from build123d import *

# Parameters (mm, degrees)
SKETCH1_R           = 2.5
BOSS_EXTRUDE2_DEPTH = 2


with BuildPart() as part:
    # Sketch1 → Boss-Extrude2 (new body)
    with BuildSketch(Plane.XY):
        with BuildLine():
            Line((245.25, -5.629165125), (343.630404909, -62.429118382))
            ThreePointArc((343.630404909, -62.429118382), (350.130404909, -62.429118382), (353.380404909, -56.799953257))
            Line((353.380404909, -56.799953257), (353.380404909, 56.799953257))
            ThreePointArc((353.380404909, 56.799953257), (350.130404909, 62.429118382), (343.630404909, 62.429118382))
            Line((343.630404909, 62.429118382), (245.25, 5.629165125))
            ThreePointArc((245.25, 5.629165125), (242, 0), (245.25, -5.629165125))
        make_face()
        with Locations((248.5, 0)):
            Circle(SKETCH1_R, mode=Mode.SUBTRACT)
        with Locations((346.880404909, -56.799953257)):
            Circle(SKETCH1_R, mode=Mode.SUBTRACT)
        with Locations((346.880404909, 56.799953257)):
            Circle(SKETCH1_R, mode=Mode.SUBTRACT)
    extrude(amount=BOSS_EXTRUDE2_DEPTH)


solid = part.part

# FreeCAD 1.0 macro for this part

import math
import FreeCAD as App
import Part
import Sketcher

V = App.Vector
Q = App.Units.Quantity

doc = App.newDocument("Part")
body = doc.addObject("PartDesign::Body", "Body")

# Sketch on XY plane
sketch1 = body.newObject("Sketcher::SketchObject", "Sketch")
sketch1.AttachmentSupport = (doc.getObject("XY_Plane"), [""])
sketch1.MapMode = "FlatFace"
sketch1.addGeometry(Part.LineSegment(V(245.2, -5.6, 0), V(343.6, -62.4, 0)), False)
sketch1.addGeometry(Part.ArcOfCircle(Part.Circle(V(346.9, -56.8, 0), V(0, 0, 1), 6.5), math.radians(-120), math.radians(0)), False)
sketch1.addGeometry(Part.LineSegment(V(353.4, -56.8, 0), V(353.4, 56.8, 0)), False)
sketch1.addGeometry(Part.ArcOfCircle(Part.Circle(V(346.9, 56.8, 0), V(0, 0, 1), 6.5), math.radians(0), math.radians(120)), False)
sketch1.addGeometry(Part.LineSegment(V(343.6, 62.4, 0), V(245.2, 5.6, 0)), False)
sketch1.addGeometry(Part.ArcOfCircle(Part.Circle(V(248.5, 0, 0), V(0, 0, 1), 6.5), math.radians(120), math.radians(240)), False)
sketch1.addGeometry(Part.Circle(V(346.9, -56.8, 0), V(0, 0, 1), 2.5), False)
sketch1.addGeometry(Part.Circle(V(248.5, 0, 0), V(0, 0, 1), 2.5), False)
sketch1.addGeometry(Part.Circle(V(346.9, 56.8, 0), V(0, 0, 1), 2.5), False)
sketch1.addConstraint(Sketcher.Constraint("Tangent", 0, 2, 1, 1))
sketch1.addConstraint(Sketcher.Constraint("Tangent", 1, 2, 2, 1))
sketch1.addConstraint(Sketcher.Constraint("Tangent", 2, 2, 3, 1))
sketch1.addConstraint(Sketcher.Constraint("Tangent", 3, 2, 4, 1))
sketch1.addConstraint(Sketcher.Constraint("Tangent", 4, 2, 5, 1))
sketch1.addConstraint(Sketcher.Constraint("Tangent", 5, 2, 0, 1))
sketch1.addConstraint(Sketcher.Constraint("Vertical", 2))
sketch1.addConstraint(Sketcher.Constraint("Coincident", 6, 3, 1, 3))
sketch1.addConstraint(Sketcher.Constraint("Coincident", 7, 3, 5, 3))
sketch1.addConstraint(Sketcher.Constraint("Coincident", 8, 3, 3, 3))
sketch1.addConstraint(Sketcher.Constraint("Equal", 1, 3))
sketch1.addConstraint(Sketcher.Constraint("Equal", 3, 5))
sketch1.addConstraint(Sketcher.Constraint("Equal", 6, 7))
sketch1.addConstraint(Sketcher.Constraint("Equal", 7, 8))
sketch1.addConstraint(Sketcher.Constraint("Symmetric", 0, 2, 3, 2, -1))
sketch1.addConstraint(Sketcher.Constraint("Diameter", 6, Q("5 mm")))
sketch1.addConstraint(Sketcher.Constraint("Radius", 1, Q("6.5 mm")))
sketch1.addConstraint(Sketcher.Constraint("Angle", 0, Q("-30 deg")))
sketch1.addConstraint(Sketcher.Constraint("DistanceX", -1, 1, 5, 3, Q("248.5 mm")))
sketch1.addConstraint(Sketcher.Constraint("DistanceY", 2, 1, 2, 2, Q("113.599907 mm")))
pad1 = body.newObject("PartDesign::Pad", "Pad")
pad1.Profile = sketch1
pad1.Length = 2

doc.recompute()
